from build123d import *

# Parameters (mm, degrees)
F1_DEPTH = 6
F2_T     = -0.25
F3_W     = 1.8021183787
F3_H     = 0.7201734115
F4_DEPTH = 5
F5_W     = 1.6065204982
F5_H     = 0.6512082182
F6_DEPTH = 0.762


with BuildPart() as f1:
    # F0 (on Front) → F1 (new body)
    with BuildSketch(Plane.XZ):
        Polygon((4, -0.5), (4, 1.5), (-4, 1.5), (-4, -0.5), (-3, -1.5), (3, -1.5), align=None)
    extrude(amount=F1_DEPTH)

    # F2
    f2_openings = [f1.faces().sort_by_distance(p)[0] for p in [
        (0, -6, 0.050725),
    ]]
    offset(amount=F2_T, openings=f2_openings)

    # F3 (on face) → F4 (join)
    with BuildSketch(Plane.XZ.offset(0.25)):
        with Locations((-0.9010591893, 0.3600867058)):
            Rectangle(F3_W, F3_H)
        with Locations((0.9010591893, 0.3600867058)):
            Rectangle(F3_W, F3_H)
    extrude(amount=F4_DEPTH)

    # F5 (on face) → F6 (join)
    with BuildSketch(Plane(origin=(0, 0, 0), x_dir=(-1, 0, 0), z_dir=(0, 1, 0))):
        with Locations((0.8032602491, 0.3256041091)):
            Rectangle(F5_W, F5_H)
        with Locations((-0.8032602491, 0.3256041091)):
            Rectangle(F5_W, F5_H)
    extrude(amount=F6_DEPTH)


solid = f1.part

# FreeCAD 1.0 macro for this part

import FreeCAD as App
import Part
import Sketcher
from FreeCAD import Vector


def faces_at(feature, points):
    """Names of the faces that lie closest to the given points."""
    faces = feature.Shape.Faces
    near = lambda p: min(range(len(faces)), key=lambda i: faces[i].distToShape(Part.Vertex(*p))[0])
    return sorted({f"Face{near(p) + 1}" for p in points})


def add_polygon(sketch, points):
    """Adds a closed chain of lines whose ends are joined by coincident constraints."""
    first, n = sketch.GeometryCount, len(points)
    for a, b in zip(points, points[1:] + points[:1]):
        sketch.addGeometry(Part.LineSegment(App.Vector(*a, 0), App.Vector(*b, 0)), False)
    for i in range(n):
        sketch.addConstraint(Sketcher.Constraint("Coincident", first + i, 2, first + (i + 1) % n, 1))

doc = App.newDocument("Part")
body = doc.addObject("PartDesign::Body", "Body")

# Sketch on XZ plane
sketch1 = body.newObject("Sketcher::SketchObject", "Sketch")
sketch1.AttachmentSupport = (doc.getObject("XZ_Plane"), [""])
sketch1.MapMode = "FlatFace"
add_polygon(sketch1, [(4, -0.5), (4, 1.5), (-4, 1.5), (-4, -0.5), (-3, -1.5), (3, -1.5)])  # lines 0-5
sketch1.addConstraint([
    Sketcher.Constraint("Vertical", 0),
    Sketcher.Constraint("Horizontal", 1),
    Sketcher.Constraint("Vertical", 2),
    Sketcher.Constraint("Horizontal", 4),
    Sketcher.Constraint("Symmetric", 2, 2, 5, 2, -2),
    Sketcher.Constraint("Perpendicular", 3, 5),
    Sketcher.Constraint("Equal", 3, 5),
    Sketcher.Constraint("DistanceX", 1, 2, 1, 1, 8.0),
    Sketcher.Constraint("DistanceX", 4, 1, 4, 2, 6.0),
    Sketcher.Constraint("DistanceY", 0, 1, 0, 2, 2.0),
    Sketcher.Constraint("DistanceY", -1, 1, 0, 2, 1.5),
])
pad1 = body.newObject("PartDesign::Pad", "Pad")
pad1.Profile = sketch1
pad1.Length = 6
doc.recompute()

thickness = body.newObject("PartDesign::Thickness", "Thickness")
thickness.Base = (pad1, faces_at(pad1, [(0, -6, 0)]))
thickness.Value = 0.25
thickness.Reversed = True
thickness.Join = "Arc"

# Sketch on XZ plane
sketch2 = body.newObject("Sketcher::SketchObject", "Sketch001")
sketch2.AttachmentSupport = (doc.getObject("XZ_Plane"), [""])
sketch2.MapMode = "FlatFace"
sketch2.AttachmentOffset = App.Placement(Vector(0, 0, 0.25), App.Rotation())
add_polygon(sketch2, [(-1.802118, 0.720173), (-1.802118, 0), (1.802118, 0), (1.802118, 0.720173)])  # lines 0-3
sketch2.addConstraint([
    Sketcher.Constraint("Vertical", 0),
    Sketcher.Constraint("Horizontal", 1),
    Sketcher.Constraint("Vertical", 2),
    Sketcher.Constraint("Horizontal", 3),
    Sketcher.Constraint("Symmetric", 0, 2, 1, 2, -1, 1),
    Sketcher.Constraint("DistanceX", 1, 1, 1, 2, 3.604237),
    Sketcher.Constraint("DistanceY", 0, 2, 0, 1, 0.720173),
])
pad2 = body.newObject("PartDesign::Pad", "Pad001")
pad2.Profile = sketch2
pad2.Length = 5

# Sketch on XZ plane
sketch3 = body.newObject("Sketcher::SketchObject", "Sketch002")
sketch3.AttachmentSupport = (doc.getObject("XZ_Plane"), [""])
sketch3.MapMode = "FlatFace"
add_polygon(sketch3, [(-1.60652, 0), (-1.60652, 0.651208), (1.60652, 0.651208), (1.60652, 0)])  # lines 0-3
sketch3.addConstraint([
    Sketcher.Constraint("Vertical", 0),
    Sketcher.Constraint("Horizontal", 1),
    Sketcher.Constraint("Vertical", 2),
    Sketcher.Constraint("Horizontal", 3),
    Sketcher.Constraint("Symmetric", 2, 2, 3, 2, -1, 1),
    Sketcher.Constraint("DistanceX", 1, 1, 1, 2, 3.213041),
    Sketcher.Constraint("DistanceY", 0, 1, 0, 2, 0.651208),
])
pad3 = body.newObject("PartDesign::Pad", "Pad002")
pad3.Profile = sketch3
pad3.Length = 0.762
pad3.Reversed = True

doc.recompute()
